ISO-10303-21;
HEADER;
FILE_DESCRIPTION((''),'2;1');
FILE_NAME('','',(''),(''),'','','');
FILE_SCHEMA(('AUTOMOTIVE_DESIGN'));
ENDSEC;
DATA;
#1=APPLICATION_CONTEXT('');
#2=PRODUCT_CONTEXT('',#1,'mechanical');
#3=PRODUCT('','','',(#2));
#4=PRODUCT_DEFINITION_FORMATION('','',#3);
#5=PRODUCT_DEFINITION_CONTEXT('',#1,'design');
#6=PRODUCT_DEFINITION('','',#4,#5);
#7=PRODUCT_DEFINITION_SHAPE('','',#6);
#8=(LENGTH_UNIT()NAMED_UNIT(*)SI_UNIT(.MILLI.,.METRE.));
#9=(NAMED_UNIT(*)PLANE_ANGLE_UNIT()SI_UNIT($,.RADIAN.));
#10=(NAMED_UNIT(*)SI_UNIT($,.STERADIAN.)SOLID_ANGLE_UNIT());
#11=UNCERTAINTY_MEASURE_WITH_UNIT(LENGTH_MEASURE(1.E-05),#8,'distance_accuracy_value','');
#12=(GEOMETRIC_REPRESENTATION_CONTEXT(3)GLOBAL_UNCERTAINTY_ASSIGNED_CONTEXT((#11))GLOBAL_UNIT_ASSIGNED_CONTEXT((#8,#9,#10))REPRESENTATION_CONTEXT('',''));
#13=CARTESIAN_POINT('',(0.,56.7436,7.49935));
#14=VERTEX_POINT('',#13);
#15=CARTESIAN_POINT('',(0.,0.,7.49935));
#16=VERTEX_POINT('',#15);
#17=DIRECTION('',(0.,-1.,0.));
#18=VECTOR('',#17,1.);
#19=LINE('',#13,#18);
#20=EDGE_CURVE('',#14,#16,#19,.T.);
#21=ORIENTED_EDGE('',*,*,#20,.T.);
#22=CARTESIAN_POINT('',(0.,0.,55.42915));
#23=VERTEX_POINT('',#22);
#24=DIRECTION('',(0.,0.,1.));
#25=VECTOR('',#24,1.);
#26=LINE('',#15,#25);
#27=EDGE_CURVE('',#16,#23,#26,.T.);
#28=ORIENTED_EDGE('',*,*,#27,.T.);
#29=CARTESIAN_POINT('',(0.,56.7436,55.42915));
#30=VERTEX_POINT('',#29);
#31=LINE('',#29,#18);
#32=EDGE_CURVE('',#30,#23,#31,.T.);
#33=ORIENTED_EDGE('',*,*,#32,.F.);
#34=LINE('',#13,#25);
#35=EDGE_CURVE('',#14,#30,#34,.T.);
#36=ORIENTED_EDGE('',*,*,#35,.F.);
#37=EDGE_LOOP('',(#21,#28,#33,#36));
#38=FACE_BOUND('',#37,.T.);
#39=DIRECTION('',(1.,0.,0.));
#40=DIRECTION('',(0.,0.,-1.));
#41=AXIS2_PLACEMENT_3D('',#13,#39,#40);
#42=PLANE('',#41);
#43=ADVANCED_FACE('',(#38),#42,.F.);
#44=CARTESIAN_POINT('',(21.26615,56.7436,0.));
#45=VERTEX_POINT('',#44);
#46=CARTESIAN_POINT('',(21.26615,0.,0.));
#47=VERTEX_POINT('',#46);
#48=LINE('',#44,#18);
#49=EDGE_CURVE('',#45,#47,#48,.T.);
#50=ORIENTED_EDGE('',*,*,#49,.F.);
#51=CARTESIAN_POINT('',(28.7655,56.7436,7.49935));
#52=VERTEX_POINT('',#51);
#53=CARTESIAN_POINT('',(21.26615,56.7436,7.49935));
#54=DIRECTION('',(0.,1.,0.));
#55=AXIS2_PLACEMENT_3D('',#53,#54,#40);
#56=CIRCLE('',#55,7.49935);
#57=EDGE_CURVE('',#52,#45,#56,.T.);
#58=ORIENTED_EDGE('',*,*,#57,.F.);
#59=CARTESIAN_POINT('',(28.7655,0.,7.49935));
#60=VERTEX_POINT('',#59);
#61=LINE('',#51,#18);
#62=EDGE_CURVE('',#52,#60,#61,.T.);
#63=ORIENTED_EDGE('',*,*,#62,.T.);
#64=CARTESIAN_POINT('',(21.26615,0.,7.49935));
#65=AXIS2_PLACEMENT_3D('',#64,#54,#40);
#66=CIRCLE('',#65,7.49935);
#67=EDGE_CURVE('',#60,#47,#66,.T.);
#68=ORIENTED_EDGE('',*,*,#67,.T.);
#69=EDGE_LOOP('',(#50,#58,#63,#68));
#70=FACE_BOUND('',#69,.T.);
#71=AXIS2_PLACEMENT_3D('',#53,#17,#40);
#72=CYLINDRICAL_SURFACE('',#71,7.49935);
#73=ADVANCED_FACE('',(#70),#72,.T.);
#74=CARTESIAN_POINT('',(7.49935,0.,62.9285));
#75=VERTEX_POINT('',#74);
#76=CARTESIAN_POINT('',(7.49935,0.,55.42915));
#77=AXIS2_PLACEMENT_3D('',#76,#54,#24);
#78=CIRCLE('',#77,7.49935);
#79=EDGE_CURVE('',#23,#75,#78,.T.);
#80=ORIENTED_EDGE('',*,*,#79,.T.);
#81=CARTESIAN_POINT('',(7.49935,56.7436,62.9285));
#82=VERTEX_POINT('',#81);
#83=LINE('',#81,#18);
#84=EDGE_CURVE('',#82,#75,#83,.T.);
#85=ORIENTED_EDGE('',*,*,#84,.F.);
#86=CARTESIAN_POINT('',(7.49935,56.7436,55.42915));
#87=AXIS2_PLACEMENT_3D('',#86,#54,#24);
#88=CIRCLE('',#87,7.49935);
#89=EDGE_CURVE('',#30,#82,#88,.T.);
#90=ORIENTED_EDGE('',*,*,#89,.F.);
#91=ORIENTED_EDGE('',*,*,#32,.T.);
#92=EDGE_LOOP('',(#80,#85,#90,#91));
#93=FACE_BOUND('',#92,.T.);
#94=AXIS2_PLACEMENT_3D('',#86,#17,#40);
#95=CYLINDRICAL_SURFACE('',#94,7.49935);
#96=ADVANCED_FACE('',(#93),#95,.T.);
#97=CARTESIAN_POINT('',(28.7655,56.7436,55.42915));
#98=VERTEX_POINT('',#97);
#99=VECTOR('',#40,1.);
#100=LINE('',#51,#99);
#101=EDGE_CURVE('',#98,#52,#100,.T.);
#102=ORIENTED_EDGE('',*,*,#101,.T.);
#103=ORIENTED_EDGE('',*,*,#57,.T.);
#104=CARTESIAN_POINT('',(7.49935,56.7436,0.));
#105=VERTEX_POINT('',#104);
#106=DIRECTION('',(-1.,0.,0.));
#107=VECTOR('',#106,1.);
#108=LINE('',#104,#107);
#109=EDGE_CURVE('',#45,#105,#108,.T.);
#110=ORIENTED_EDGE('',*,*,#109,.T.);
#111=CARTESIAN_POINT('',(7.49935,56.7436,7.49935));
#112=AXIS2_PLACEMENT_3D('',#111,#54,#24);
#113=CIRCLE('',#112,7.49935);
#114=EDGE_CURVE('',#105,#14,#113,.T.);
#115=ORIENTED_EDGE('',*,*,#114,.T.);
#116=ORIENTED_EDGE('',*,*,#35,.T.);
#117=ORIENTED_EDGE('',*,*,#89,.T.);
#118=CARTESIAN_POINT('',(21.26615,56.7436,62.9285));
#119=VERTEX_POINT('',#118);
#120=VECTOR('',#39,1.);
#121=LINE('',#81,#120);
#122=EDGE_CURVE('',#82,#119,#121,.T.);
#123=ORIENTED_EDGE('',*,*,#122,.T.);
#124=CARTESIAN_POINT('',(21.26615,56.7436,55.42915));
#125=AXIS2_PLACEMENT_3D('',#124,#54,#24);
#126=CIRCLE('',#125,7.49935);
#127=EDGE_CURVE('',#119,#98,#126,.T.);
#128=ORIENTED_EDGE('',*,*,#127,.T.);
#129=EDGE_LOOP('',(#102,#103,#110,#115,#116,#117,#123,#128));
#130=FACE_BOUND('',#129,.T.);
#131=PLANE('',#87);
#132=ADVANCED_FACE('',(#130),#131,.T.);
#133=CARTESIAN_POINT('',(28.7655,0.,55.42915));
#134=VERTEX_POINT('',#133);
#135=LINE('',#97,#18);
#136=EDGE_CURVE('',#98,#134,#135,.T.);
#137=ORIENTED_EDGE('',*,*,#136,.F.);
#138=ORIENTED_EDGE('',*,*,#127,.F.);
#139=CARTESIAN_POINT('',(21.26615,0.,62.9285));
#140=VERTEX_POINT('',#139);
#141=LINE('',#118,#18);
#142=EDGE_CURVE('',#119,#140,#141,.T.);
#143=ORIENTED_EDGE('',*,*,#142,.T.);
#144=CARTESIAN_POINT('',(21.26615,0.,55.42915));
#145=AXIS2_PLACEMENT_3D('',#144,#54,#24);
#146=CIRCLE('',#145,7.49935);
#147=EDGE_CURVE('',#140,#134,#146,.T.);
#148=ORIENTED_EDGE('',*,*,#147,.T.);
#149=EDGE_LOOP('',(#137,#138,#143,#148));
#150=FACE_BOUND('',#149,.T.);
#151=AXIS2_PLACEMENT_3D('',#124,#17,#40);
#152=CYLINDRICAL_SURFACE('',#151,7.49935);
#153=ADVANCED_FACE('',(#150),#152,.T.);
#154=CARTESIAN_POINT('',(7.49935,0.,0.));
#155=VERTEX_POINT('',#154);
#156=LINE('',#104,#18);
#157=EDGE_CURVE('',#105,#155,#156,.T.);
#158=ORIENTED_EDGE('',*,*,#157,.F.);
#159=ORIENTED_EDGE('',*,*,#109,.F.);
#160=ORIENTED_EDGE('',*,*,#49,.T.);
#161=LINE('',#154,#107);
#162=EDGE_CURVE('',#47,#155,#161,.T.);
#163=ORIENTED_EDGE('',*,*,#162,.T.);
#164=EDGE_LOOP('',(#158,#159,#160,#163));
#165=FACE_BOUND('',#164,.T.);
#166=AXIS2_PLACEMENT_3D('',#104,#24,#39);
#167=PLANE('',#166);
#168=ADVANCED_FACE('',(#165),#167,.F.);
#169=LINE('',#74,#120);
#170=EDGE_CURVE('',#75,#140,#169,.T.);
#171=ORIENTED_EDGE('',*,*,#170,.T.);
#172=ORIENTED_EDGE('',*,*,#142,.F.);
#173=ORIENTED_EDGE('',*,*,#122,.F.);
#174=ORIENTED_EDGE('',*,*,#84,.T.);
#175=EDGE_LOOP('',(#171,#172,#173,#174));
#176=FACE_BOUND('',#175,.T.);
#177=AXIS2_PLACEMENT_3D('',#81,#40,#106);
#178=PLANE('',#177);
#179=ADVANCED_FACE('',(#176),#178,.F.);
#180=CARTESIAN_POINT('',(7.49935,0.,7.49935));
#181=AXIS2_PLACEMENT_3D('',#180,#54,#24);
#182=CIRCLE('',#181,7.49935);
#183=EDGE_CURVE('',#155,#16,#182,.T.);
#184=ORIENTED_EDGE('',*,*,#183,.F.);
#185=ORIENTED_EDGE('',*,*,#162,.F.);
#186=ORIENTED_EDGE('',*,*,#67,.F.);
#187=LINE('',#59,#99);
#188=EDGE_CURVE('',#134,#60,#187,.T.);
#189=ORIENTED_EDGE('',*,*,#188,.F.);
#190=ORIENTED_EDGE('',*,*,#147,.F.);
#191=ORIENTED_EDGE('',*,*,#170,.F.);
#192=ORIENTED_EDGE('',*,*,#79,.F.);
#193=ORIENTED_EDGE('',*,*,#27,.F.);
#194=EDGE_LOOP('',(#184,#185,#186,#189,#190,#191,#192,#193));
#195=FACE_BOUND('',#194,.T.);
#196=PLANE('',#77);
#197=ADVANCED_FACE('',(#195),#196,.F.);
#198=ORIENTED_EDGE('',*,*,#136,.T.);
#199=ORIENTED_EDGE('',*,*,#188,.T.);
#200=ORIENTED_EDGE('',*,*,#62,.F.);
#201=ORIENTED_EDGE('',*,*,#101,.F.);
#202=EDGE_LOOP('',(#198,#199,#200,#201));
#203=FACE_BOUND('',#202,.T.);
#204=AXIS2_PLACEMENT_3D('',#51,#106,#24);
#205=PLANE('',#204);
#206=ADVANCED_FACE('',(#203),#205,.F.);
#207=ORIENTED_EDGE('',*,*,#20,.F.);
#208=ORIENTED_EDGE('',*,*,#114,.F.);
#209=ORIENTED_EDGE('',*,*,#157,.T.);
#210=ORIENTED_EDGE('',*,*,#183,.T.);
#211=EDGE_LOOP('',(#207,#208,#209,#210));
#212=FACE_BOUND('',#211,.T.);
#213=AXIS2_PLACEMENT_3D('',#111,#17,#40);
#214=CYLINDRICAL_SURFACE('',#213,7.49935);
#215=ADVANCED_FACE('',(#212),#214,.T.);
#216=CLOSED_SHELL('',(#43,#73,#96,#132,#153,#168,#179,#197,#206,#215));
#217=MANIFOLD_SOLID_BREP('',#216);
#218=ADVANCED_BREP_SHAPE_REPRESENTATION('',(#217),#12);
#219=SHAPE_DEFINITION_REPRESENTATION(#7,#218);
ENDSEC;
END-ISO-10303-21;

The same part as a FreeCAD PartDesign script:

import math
import FreeCAD as App
import Part
import Sketcher

V = App.Vector
Q = App.Units.Quantity

doc = App.newDocument("Part")
params = doc.addObject("Spreadsheet::Sheet", "Params")
for row, (alias, value) in enumerate([
    ("sketch1_width", "0.542 in"),
    ("sketch1_height", "1.887 in"),
    ("pad1_length", "2.234 in"),
], start=1):
    params.set(f"A{row}", alias)
    params.set(f"B{row}", "=" + value)
    params.setAlias(f"B{row}", alias)

body = doc.addObject("PartDesign::Body", "Body")

# Sketch on XZ plane
sketch1 = body.newObject("Sketcher::SketchObject", "Sketch")
sketch1.AttachmentSupport = (doc.getObject("XZ_Plane"), [""])
sketch1.MapMode = "FlatFace"
sketch1.addGeometry([
    Part.LineSegment(V(21, 0, 0), V(7, 0, 0)),  # 0
    Part.ArcOfCircle(Part.Circle(V(7, 7, 0), V(0, 0, 1), 7), math.radians(-180), math.radians(-90)),  # 1
    Part.LineSegment(V(0, 7, 0), V(0, 55, 0)),  # 2
    Part.ArcOfCircle(Part.Circle(V(7, 55, 0), V(0, 0, 1), 7), math.radians(90), math.radians(180)),  # 3
    Part.LineSegment(V(7, 63, 0), V(21, 63, 0)),  # 4
    Part.ArcOfCircle(Part.Circle(V(21, 55, 0), V(0, 0, 1), 7), math.radians(0), math.radians(90)),  # 5
    Part.LineSegment(V(29, 55, 0), V(29, 7, 0)),  # 6
    Part.ArcOfCircle(Part.Circle(V(21, 7, 0), V(0, 0, 1), 7), math.radians(-90), math.radians(0)),  # 7
], False)
sketch1.addConstraint([
    Sketcher.Constraint("Tangent", 0, 2, 1, 2),
    Sketcher.Constraint("Tangent", 1, 1, 2, 1),
    Sketcher.Constraint("Tangent", 2, 2, 3, 2),
    Sketcher.Constraint("Tangent", 3, 1, 4, 1),
    Sketcher.Constraint("Tangent", 4, 2, 5, 2),
    Sketcher.Constraint("Tangent", 5, 1, 6, 1),
    Sketcher.Constraint("Tangent", 6, 2, 7, 2),
    Sketcher.Constraint("Tangent", 7, 1, 0, 1),
    Sketcher.Constraint("Horizontal", 0),
    Sketcher.Constraint("Vertical", 2),
    Sketcher.Constraint("Horizontal", 4),
    Sketcher.Constraint("Vertical", 6),
    Sketcher.Constraint("Equal", 1, 3),
    Sketcher.Constraint("Equal", 3, 5),
    Sketcher.Constraint("Equal", 5, 7),
    Sketcher.Constraint("PointOnObject", 0, 2, -1),
    Sketcher.Constraint("PointOnObject", 1, 1, -2),
    Sketcher.Constraint("DistanceX", 0, 2, 0, 1, Q("0.542 in")),
    Sketcher.Constraint("DistanceY", 2, 1, 2, 2, Q("1.887 in")),
    Sketcher.Constraint("Radius", 1, Q("7.49935 mm")),
])
sketch1.setExpression("Constraints[17]", "Params.sketch1_width")
sketch1.setExpression("Constraints[18]", "Params.sketch1_height")
pad1 = body.newObject("PartDesign::Pad", "Pad")
pad1.Profile = sketch1
pad1.setExpression("Length", "Params.pad1_length")
pad1.Reversed = True

doc.recompute()
